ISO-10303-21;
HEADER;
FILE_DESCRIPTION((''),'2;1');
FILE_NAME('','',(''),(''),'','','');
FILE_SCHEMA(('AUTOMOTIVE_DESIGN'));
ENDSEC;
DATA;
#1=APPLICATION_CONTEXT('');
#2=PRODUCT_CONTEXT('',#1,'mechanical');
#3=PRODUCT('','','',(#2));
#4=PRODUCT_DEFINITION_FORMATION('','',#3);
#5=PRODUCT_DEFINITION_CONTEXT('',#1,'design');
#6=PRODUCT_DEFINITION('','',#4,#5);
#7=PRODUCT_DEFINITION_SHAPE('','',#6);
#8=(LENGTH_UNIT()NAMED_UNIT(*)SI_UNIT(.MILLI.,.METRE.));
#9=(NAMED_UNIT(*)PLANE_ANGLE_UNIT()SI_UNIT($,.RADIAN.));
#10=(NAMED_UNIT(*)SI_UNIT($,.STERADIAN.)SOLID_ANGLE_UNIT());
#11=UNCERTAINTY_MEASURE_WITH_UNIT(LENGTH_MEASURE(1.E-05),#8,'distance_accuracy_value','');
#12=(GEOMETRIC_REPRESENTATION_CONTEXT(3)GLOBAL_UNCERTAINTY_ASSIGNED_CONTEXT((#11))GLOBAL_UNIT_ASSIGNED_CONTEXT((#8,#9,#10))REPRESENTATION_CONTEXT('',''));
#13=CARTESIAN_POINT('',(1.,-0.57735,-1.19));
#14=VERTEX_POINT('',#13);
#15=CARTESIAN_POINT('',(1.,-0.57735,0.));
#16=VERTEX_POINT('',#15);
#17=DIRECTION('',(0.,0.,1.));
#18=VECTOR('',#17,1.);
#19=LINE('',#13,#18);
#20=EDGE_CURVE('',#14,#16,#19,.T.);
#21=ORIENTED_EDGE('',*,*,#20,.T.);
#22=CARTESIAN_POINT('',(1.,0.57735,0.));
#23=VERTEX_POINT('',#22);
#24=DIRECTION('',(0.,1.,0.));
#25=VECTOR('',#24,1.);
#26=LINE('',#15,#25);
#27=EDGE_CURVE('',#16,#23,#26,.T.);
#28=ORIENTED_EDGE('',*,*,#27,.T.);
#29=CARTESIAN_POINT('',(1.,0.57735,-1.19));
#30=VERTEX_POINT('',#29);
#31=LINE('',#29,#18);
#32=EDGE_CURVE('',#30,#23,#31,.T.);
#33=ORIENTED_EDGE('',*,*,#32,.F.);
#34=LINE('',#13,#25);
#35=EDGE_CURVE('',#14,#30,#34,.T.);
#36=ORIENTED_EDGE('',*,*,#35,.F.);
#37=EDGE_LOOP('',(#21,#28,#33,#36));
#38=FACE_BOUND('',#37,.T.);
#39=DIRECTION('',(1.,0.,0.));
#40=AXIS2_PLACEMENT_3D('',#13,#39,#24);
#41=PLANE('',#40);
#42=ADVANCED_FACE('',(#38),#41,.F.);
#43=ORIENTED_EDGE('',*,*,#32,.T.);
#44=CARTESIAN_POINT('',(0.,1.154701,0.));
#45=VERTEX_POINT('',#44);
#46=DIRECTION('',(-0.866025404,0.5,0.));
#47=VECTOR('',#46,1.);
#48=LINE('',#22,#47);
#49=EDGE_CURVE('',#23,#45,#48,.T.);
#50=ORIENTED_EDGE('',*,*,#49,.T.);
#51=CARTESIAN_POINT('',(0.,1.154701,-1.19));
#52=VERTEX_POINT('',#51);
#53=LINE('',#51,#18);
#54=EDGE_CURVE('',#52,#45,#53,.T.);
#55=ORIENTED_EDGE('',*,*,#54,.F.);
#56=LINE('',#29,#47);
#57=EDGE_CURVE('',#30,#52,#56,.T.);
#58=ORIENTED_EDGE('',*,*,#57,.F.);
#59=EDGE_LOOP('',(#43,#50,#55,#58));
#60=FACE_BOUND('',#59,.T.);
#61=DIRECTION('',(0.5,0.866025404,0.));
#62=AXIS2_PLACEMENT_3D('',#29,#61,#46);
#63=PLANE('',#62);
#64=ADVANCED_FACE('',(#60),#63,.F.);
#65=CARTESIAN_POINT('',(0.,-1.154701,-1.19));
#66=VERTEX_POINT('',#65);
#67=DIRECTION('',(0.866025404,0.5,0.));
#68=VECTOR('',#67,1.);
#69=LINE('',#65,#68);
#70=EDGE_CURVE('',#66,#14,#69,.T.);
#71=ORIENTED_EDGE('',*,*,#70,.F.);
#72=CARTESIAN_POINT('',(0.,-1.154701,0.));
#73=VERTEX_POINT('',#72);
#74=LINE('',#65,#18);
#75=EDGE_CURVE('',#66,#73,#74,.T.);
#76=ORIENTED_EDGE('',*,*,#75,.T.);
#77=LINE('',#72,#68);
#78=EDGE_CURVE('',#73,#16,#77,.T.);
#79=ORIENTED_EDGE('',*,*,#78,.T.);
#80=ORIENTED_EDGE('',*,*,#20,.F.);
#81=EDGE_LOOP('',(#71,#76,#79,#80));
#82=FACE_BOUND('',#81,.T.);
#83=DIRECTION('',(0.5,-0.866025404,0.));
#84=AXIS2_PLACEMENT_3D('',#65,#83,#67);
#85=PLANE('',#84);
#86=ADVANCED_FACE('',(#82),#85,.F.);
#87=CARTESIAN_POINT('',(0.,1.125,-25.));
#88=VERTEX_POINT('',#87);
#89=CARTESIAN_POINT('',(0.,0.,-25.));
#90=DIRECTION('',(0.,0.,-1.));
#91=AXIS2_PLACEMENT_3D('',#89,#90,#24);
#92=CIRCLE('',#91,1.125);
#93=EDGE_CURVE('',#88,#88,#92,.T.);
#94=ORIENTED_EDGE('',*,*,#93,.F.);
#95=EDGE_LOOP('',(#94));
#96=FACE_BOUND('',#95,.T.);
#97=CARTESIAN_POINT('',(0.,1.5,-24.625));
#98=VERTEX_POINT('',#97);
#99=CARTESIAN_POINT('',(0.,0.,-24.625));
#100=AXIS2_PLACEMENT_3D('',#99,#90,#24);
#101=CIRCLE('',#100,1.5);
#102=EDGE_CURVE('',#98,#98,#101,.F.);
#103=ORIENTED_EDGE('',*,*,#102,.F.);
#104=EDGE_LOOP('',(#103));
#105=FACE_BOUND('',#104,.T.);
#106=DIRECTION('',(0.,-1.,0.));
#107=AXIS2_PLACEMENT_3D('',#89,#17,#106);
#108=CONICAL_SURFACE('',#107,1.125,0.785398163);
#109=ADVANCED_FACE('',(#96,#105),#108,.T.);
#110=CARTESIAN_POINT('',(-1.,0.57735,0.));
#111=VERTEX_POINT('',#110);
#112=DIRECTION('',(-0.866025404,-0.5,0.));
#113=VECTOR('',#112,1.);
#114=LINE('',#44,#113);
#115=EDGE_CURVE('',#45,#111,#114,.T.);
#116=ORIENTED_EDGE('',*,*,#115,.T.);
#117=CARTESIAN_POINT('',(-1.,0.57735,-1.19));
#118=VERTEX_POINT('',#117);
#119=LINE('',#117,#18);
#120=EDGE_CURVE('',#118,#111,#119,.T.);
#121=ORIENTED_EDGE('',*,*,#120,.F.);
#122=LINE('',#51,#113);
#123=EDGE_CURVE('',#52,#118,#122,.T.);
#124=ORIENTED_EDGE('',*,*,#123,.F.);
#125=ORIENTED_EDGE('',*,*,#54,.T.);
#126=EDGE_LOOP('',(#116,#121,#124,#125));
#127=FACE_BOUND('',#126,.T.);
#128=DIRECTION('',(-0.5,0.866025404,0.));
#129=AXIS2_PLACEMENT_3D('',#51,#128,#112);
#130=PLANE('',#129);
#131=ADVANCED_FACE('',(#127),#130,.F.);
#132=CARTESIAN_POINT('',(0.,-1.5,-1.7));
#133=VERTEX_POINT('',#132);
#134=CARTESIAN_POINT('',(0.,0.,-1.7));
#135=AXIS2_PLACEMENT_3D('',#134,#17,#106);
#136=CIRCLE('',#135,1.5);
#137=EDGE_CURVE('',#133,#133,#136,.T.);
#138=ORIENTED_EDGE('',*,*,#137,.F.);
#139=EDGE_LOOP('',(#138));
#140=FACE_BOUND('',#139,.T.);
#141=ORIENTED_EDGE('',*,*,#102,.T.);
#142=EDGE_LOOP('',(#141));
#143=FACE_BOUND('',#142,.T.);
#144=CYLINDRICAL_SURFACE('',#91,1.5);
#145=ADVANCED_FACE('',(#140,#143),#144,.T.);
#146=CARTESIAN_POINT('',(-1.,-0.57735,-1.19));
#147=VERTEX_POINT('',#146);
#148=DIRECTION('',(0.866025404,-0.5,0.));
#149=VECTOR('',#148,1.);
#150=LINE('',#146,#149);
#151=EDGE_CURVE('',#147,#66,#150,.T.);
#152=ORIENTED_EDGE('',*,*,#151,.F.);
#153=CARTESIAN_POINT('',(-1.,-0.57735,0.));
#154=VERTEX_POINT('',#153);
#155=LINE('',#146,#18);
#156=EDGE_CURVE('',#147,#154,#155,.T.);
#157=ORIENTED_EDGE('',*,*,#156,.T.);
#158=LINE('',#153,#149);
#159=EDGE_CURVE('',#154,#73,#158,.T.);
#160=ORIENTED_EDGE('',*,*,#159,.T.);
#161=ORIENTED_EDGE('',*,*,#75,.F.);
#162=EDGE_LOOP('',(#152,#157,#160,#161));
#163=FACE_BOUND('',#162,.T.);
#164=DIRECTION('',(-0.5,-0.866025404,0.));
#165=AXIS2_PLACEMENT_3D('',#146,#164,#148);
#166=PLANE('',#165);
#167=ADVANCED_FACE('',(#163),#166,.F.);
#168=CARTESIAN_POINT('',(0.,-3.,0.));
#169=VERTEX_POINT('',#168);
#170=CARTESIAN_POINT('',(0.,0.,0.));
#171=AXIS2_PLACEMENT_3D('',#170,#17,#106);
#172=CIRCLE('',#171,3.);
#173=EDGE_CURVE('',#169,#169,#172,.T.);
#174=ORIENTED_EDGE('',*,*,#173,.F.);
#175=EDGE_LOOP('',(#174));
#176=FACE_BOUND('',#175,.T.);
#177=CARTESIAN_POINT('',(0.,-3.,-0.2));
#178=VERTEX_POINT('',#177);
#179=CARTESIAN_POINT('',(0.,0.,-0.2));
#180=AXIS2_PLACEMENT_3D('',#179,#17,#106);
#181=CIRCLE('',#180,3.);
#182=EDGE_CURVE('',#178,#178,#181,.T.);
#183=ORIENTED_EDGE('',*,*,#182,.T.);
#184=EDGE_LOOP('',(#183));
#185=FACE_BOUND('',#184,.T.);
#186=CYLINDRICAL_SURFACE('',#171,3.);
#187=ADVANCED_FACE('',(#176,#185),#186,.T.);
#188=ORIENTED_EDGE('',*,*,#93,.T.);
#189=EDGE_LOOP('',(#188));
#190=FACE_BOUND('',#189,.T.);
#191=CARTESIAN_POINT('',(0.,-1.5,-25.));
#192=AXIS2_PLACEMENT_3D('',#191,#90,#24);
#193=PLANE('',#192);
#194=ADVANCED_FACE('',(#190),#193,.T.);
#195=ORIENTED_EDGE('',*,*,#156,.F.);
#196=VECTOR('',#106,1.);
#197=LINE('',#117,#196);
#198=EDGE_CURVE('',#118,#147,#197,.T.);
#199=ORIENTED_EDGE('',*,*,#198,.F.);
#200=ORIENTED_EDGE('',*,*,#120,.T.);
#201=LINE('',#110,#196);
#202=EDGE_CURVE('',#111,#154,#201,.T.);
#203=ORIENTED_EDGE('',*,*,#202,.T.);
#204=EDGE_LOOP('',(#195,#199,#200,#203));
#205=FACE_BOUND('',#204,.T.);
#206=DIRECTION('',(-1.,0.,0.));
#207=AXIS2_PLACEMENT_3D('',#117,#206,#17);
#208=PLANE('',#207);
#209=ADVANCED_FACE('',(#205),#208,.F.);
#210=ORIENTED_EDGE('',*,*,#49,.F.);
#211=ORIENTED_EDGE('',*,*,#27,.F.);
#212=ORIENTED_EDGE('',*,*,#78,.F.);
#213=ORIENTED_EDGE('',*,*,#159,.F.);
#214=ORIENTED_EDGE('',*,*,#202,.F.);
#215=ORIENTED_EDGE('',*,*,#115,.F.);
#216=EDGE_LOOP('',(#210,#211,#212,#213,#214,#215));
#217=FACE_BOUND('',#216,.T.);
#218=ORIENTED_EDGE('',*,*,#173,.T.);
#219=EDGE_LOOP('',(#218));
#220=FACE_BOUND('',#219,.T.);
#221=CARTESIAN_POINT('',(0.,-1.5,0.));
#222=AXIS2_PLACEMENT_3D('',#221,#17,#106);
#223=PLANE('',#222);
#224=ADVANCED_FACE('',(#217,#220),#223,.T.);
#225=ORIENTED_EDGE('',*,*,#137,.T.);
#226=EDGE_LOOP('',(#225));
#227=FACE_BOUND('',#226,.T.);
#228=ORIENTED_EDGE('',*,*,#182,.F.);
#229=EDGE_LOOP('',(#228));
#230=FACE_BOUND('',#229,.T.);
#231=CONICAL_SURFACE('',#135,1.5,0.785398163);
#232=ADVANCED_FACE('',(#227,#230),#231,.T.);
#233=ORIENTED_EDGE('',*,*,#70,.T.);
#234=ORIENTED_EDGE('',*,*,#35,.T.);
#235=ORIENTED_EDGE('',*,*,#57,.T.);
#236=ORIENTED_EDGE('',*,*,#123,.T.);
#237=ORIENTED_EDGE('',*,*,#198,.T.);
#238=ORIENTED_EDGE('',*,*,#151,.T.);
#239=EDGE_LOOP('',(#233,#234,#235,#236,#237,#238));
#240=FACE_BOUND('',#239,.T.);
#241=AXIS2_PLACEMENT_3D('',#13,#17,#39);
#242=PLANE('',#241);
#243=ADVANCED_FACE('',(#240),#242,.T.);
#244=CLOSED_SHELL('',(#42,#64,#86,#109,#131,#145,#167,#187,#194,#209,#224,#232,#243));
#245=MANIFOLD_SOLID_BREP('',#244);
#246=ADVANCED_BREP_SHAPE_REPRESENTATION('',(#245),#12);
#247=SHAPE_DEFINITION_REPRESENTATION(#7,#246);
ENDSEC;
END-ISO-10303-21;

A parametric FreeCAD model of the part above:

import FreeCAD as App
import Part
import Sketcher
Q = App.Units.Quantity


def edges_at(feature, points):
    """Names of the edges that pass closest to the given points."""
    edges = feature.Shape.Edges
    near = lambda p: min(range(len(edges)), key=lambda i: edges[i].distToShape(Part.Vertex(*p))[0])
    return sorted({f"Edge{near(p) + 1}" for p in points})

doc = App.newDocument("Part")
body = doc.addObject("PartDesign::Body", "Body")

sketch1 = body.newObject("Sketcher::SketchObject", "Sketch")
sketch1.AttachmentSupport = (doc.getObject("YZ_Plane"), [""])
sketch1.MapMode = "FlatFace"
sketch1.addGeometry([
    Part.LineSegment(App.Vector(1.5, 0, 0), App.Vector(0, 0, 0)),
    Part.LineSegment(App.Vector(0, 0, 0), App.Vector(0, -25, 0)),
    Part.LineSegment(App.Vector(0, -25, 0), App.Vector(1.5, -25, 0)),
    Part.LineSegment(App.Vector(1.5, -25, 0), App.Vector(1.5, 0, 0)),
], False)
sketch1.addConstraint([
    Sketcher.Constraint("Coincident", 0, 2, 1, 1),
    Sketcher.Constraint("Coincident", 1, 2, 2, 1),
    Sketcher.Constraint("Coincident", 2, 2, 3, 1),
    Sketcher.Constraint("Coincident", 3, 2, 0, 1),
    Sketcher.Constraint("Horizontal", 0),
    Sketcher.Constraint("Vertical", 1),
    Sketcher.Constraint("Horizontal", 2),
    Sketcher.Constraint("Vertical", 3),
    Sketcher.Constraint("Coincident", 0, 2, -1, 1),
    Sketcher.Constraint("DistanceY", 1, 2, 1, 1, 25.0),
    Sketcher.Constraint("DistanceX", 0, 2, 0, 1, 1.5),
])
revolution = body.newObject("PartDesign::Revolution", "Revolution")
revolution.Profile = sketch1
revolution.ReferenceAxis = (sketch1, ["V_Axis"])
revolution.Angle = 360
doc.recompute()

chamfer = body.newObject("PartDesign::Chamfer", "Chamfer")
chamfer.Base = (revolution, edges_at(revolution, [(0, -1.5, -25)]))
chamfer.Size = 0.375

sketch2 = body.newObject("Sketcher::SketchObject", "Sketch001")
sketch2.AttachmentSupport = (doc.getObject("YZ_Plane"), [""])
sketch2.MapMode = "FlatFace"
sketch2.addGeometry([
    Part.LineSegment(App.Vector(3, -0.2, 0), App.Vector(3, 0, 0)),
    Part.LineSegment(App.Vector(3, 0, 0), App.Vector(0, 0, 0)),
    Part.LineSegment(App.Vector(0, 0, 0), App.Vector(0, -1.7, 0)),
    Part.LineSegment(App.Vector(0, -1.7, 0), App.Vector(1.5, -1.7, 0)),
    Part.LineSegment(App.Vector(1.5, -1.7, 0), App.Vector(3, -0.2, 0)),
], False)
sketch2.addConstraint([
    Sketcher.Constraint("Coincident", 0, 2, 1, 1),
    Sketcher.Constraint("Coincident", 1, 2, 2, 1),
    Sketcher.Constraint("Coincident", 2, 2, 3, 1),
    Sketcher.Constraint("Coincident", 3, 2, 4, 1),
    Sketcher.Constraint("Coincident", 4, 2, 0, 1),
    Sketcher.Constraint("Vertical", 0),
    Sketcher.Constraint("Horizontal", 1),
    Sketcher.Constraint("Vertical", 2),
    Sketcher.Constraint("Horizontal", 3),
    Sketcher.Constraint("Coincident", 1, 2, -1, 1),
    Sketcher.Constraint("DistanceX", 1, 2, 1, 1, 3.0),
    Sketcher.Constraint("Angle", 4, Q("45 deg")),
    Sketcher.Constraint("DistanceX", 3, 1, 3, 2, 1.5),
    Sketcher.Constraint("DistanceY", 0, 1, 0, 2, 0.2),
])
revolution2 = body.newObject("PartDesign::Revolution", "Revolution001")
revolution2.Profile = sketch2
revolution2.ReferenceAxis = (sketch2, ["V_Axis"])
revolution2.Angle = 360

sketch3 = body.newObject("Sketcher::SketchObject", "Sketch002")
sketch3.AttachmentSupport = (doc.getObject("YZ_Plane"), [""])
sketch3.MapMode = "FlatFace"
sketch3.addGeometry([
    Part.LineSegment(App.Vector(0, -1.7, 0), App.Vector(-1.5, -1.7, 0)),
    Part.LineSegment(App.Vector(-1.5, -1.7, 0), App.Vector(0, -3.2, 0)),
    Part.LineSegment(App.Vector(0, -3.2, 0), App.Vector(0, -1.7, 0)),
], False)
sketch3.addConstraint([
    Sketcher.Constraint("Coincident", 0, 2, 1, 1),
    Sketcher.Constraint("Coincident", 1, 2, 2, 1),
    Sketcher.Constraint("Coincident", 2, 2, 0, 1),
    Sketcher.Constraint("Horizontal", 0),
    Sketcher.Constraint("Vertical", 2),
    Sketcher.Constraint("PointOnObject", 1, 2, -2),
    Sketcher.Constraint("Equal", 0, 2),
    Sketcher.Constraint("DistanceX", 0, 2, 0, 1, 1.5),
    Sketcher.Constraint("DistanceY", 0, 2, -1, 1, 1.7),
])
revolution3 = body.newObject("PartDesign::Revolution", "Revolution002")
revolution3.Profile = sketch3
revolution3.ReferenceAxis = (sketch3, ["V_Axis"])
revolution3.Angle = 360

sketch4 = body.newObject("Sketcher::SketchObject", "Sketch003")
sketch4.AttachmentSupport = (doc.getObject("XY_Plane"), [""])
sketch4.MapMode = "FlatFace"
sketch4.addGeometry([
    Part.LineSegment(App.Vector(1, -0.57735, 0), App.Vector(1, 0.57735, 0)),
    Part.LineSegment(App.Vector(1, 0.57735, 0), App.Vector(0, 1.154701, 0)),
    Part.LineSegment(App.Vector(0, 1.154701, 0), App.Vector(-1, 0.57735, 0)),
    Part.LineSegment(App.Vector(-1, 0.57735, 0), App.Vector(-1, -0.57735, 0)),
    Part.LineSegment(App.Vector(-1, -0.57735, 0), App.Vector(0, -1.154701, 0)),
    Part.LineSegment(App.Vector(0, -1.154701, 0), App.Vector(1, -0.57735, 0)),
], False)
sketch4.addConstraint([
    Sketcher.Constraint("Coincident", 0, 2, 1, 1),
    Sketcher.Constraint("Coincident", 1, 2, 2, 1),
    Sketcher.Constraint("Coincident", 2, 2, 3, 1),
    Sketcher.Constraint("Coincident", 3, 2, 4, 1),
    Sketcher.Constraint("Coincident", 4, 2, 5, 1),
    Sketcher.Constraint("Coincident", 5, 2, 0, 1),
    Sketcher.Constraint("Vertical", 0),
    Sketcher.Constraint("Vertical", 3),
    Sketcher.Constraint("Symmetric", 0, 2, 3, 2, -1, 1),
    Sketcher.Constraint("Symmetric", 1, 2, 4, 2, -1, 1),
    Sketcher.Constraint("PointOnObject", 1, 2, -2),
    Sketcher.Constraint("Parallel", 2, 5),
    Sketcher.Constraint("Horizontal", 0, 2, 2, 2),
    Sketcher.Constraint("Angle", 1, Q("150 deg")),
    Sketcher.Constraint("DistanceX", -1, 1, 0, 2, 1.0),
    Sketcher.Constraint("DistanceY", 0, 1, 0, 2, 1.154701),
])
pocket1 = body.newObject("PartDesign::Pocket", "Pocket")
pocket1.Profile = sketch4
pocket1.Length = 1.19

doc.recompute()
